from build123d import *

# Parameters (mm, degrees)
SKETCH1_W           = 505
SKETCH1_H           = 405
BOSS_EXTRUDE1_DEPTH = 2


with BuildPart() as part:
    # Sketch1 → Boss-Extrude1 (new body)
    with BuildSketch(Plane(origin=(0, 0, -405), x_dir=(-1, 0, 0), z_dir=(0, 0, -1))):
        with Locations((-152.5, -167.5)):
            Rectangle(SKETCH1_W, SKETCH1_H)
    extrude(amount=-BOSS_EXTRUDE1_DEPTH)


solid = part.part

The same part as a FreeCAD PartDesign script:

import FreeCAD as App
import Part
import Sketcher


def add_polygon(sketch, points):
    """Adds a closed chain of lines whose ends are joined by coincident constraints."""
    first, n = sketch.GeometryCount, len(points)
    for a, b in zip(points, points[1:] + points[:1]):
        sketch.addGeometry(Part.LineSegment(App.Vector(*a, 0), App.Vector(*b, 0)), False)
    for i in range(n):
        sketch.addConstraint(Sketcher.Constraint("Coincident", first + i, 2, first + (i + 1) % n, 1))

doc = App.newDocument("Part")
body = doc.addObject("PartDesign::Body", "Body")

sketch1 = body.newObject("Sketcher::SketchObject", "Sketch")
sketch1.AttachmentSupport = (doc.getObject("XY_Plane"), [""])
sketch1.MapMode = "FlatFace"
sketch1.AttachmentOffset = App.Placement(App.Vector(0, 0, -405), App.Rotation())
add_polygon(sketch1, [(405, 35), (405, -370), (-100, -370), (-100, 35)])
sketch1.addConstraint([
    Sketcher.Constraint("Vertical", 0),
    Sketcher.Constraint("Horizontal", 1),
    Sketcher.Constraint("Vertical", 2),
    Sketcher.Constraint("Horizontal", 3),
    Sketcher.Constraint("DistanceX", 1, 2, 1, 1, 505.0),
    Sketcher.Constraint("DistanceY", 0, 2, 0, 1, 405.0),
    Sketcher.Constraint("DistanceX", -1, 1, 0, 2, 405.0),
    Sketcher.Constraint("DistanceY", 0, 2, -1, 1, 370.0),
])
pad1 = body.newObject("PartDesign::Pad", "Pad")
pad1.Profile = sketch1
pad1.Length = 2

doc.recompute()
